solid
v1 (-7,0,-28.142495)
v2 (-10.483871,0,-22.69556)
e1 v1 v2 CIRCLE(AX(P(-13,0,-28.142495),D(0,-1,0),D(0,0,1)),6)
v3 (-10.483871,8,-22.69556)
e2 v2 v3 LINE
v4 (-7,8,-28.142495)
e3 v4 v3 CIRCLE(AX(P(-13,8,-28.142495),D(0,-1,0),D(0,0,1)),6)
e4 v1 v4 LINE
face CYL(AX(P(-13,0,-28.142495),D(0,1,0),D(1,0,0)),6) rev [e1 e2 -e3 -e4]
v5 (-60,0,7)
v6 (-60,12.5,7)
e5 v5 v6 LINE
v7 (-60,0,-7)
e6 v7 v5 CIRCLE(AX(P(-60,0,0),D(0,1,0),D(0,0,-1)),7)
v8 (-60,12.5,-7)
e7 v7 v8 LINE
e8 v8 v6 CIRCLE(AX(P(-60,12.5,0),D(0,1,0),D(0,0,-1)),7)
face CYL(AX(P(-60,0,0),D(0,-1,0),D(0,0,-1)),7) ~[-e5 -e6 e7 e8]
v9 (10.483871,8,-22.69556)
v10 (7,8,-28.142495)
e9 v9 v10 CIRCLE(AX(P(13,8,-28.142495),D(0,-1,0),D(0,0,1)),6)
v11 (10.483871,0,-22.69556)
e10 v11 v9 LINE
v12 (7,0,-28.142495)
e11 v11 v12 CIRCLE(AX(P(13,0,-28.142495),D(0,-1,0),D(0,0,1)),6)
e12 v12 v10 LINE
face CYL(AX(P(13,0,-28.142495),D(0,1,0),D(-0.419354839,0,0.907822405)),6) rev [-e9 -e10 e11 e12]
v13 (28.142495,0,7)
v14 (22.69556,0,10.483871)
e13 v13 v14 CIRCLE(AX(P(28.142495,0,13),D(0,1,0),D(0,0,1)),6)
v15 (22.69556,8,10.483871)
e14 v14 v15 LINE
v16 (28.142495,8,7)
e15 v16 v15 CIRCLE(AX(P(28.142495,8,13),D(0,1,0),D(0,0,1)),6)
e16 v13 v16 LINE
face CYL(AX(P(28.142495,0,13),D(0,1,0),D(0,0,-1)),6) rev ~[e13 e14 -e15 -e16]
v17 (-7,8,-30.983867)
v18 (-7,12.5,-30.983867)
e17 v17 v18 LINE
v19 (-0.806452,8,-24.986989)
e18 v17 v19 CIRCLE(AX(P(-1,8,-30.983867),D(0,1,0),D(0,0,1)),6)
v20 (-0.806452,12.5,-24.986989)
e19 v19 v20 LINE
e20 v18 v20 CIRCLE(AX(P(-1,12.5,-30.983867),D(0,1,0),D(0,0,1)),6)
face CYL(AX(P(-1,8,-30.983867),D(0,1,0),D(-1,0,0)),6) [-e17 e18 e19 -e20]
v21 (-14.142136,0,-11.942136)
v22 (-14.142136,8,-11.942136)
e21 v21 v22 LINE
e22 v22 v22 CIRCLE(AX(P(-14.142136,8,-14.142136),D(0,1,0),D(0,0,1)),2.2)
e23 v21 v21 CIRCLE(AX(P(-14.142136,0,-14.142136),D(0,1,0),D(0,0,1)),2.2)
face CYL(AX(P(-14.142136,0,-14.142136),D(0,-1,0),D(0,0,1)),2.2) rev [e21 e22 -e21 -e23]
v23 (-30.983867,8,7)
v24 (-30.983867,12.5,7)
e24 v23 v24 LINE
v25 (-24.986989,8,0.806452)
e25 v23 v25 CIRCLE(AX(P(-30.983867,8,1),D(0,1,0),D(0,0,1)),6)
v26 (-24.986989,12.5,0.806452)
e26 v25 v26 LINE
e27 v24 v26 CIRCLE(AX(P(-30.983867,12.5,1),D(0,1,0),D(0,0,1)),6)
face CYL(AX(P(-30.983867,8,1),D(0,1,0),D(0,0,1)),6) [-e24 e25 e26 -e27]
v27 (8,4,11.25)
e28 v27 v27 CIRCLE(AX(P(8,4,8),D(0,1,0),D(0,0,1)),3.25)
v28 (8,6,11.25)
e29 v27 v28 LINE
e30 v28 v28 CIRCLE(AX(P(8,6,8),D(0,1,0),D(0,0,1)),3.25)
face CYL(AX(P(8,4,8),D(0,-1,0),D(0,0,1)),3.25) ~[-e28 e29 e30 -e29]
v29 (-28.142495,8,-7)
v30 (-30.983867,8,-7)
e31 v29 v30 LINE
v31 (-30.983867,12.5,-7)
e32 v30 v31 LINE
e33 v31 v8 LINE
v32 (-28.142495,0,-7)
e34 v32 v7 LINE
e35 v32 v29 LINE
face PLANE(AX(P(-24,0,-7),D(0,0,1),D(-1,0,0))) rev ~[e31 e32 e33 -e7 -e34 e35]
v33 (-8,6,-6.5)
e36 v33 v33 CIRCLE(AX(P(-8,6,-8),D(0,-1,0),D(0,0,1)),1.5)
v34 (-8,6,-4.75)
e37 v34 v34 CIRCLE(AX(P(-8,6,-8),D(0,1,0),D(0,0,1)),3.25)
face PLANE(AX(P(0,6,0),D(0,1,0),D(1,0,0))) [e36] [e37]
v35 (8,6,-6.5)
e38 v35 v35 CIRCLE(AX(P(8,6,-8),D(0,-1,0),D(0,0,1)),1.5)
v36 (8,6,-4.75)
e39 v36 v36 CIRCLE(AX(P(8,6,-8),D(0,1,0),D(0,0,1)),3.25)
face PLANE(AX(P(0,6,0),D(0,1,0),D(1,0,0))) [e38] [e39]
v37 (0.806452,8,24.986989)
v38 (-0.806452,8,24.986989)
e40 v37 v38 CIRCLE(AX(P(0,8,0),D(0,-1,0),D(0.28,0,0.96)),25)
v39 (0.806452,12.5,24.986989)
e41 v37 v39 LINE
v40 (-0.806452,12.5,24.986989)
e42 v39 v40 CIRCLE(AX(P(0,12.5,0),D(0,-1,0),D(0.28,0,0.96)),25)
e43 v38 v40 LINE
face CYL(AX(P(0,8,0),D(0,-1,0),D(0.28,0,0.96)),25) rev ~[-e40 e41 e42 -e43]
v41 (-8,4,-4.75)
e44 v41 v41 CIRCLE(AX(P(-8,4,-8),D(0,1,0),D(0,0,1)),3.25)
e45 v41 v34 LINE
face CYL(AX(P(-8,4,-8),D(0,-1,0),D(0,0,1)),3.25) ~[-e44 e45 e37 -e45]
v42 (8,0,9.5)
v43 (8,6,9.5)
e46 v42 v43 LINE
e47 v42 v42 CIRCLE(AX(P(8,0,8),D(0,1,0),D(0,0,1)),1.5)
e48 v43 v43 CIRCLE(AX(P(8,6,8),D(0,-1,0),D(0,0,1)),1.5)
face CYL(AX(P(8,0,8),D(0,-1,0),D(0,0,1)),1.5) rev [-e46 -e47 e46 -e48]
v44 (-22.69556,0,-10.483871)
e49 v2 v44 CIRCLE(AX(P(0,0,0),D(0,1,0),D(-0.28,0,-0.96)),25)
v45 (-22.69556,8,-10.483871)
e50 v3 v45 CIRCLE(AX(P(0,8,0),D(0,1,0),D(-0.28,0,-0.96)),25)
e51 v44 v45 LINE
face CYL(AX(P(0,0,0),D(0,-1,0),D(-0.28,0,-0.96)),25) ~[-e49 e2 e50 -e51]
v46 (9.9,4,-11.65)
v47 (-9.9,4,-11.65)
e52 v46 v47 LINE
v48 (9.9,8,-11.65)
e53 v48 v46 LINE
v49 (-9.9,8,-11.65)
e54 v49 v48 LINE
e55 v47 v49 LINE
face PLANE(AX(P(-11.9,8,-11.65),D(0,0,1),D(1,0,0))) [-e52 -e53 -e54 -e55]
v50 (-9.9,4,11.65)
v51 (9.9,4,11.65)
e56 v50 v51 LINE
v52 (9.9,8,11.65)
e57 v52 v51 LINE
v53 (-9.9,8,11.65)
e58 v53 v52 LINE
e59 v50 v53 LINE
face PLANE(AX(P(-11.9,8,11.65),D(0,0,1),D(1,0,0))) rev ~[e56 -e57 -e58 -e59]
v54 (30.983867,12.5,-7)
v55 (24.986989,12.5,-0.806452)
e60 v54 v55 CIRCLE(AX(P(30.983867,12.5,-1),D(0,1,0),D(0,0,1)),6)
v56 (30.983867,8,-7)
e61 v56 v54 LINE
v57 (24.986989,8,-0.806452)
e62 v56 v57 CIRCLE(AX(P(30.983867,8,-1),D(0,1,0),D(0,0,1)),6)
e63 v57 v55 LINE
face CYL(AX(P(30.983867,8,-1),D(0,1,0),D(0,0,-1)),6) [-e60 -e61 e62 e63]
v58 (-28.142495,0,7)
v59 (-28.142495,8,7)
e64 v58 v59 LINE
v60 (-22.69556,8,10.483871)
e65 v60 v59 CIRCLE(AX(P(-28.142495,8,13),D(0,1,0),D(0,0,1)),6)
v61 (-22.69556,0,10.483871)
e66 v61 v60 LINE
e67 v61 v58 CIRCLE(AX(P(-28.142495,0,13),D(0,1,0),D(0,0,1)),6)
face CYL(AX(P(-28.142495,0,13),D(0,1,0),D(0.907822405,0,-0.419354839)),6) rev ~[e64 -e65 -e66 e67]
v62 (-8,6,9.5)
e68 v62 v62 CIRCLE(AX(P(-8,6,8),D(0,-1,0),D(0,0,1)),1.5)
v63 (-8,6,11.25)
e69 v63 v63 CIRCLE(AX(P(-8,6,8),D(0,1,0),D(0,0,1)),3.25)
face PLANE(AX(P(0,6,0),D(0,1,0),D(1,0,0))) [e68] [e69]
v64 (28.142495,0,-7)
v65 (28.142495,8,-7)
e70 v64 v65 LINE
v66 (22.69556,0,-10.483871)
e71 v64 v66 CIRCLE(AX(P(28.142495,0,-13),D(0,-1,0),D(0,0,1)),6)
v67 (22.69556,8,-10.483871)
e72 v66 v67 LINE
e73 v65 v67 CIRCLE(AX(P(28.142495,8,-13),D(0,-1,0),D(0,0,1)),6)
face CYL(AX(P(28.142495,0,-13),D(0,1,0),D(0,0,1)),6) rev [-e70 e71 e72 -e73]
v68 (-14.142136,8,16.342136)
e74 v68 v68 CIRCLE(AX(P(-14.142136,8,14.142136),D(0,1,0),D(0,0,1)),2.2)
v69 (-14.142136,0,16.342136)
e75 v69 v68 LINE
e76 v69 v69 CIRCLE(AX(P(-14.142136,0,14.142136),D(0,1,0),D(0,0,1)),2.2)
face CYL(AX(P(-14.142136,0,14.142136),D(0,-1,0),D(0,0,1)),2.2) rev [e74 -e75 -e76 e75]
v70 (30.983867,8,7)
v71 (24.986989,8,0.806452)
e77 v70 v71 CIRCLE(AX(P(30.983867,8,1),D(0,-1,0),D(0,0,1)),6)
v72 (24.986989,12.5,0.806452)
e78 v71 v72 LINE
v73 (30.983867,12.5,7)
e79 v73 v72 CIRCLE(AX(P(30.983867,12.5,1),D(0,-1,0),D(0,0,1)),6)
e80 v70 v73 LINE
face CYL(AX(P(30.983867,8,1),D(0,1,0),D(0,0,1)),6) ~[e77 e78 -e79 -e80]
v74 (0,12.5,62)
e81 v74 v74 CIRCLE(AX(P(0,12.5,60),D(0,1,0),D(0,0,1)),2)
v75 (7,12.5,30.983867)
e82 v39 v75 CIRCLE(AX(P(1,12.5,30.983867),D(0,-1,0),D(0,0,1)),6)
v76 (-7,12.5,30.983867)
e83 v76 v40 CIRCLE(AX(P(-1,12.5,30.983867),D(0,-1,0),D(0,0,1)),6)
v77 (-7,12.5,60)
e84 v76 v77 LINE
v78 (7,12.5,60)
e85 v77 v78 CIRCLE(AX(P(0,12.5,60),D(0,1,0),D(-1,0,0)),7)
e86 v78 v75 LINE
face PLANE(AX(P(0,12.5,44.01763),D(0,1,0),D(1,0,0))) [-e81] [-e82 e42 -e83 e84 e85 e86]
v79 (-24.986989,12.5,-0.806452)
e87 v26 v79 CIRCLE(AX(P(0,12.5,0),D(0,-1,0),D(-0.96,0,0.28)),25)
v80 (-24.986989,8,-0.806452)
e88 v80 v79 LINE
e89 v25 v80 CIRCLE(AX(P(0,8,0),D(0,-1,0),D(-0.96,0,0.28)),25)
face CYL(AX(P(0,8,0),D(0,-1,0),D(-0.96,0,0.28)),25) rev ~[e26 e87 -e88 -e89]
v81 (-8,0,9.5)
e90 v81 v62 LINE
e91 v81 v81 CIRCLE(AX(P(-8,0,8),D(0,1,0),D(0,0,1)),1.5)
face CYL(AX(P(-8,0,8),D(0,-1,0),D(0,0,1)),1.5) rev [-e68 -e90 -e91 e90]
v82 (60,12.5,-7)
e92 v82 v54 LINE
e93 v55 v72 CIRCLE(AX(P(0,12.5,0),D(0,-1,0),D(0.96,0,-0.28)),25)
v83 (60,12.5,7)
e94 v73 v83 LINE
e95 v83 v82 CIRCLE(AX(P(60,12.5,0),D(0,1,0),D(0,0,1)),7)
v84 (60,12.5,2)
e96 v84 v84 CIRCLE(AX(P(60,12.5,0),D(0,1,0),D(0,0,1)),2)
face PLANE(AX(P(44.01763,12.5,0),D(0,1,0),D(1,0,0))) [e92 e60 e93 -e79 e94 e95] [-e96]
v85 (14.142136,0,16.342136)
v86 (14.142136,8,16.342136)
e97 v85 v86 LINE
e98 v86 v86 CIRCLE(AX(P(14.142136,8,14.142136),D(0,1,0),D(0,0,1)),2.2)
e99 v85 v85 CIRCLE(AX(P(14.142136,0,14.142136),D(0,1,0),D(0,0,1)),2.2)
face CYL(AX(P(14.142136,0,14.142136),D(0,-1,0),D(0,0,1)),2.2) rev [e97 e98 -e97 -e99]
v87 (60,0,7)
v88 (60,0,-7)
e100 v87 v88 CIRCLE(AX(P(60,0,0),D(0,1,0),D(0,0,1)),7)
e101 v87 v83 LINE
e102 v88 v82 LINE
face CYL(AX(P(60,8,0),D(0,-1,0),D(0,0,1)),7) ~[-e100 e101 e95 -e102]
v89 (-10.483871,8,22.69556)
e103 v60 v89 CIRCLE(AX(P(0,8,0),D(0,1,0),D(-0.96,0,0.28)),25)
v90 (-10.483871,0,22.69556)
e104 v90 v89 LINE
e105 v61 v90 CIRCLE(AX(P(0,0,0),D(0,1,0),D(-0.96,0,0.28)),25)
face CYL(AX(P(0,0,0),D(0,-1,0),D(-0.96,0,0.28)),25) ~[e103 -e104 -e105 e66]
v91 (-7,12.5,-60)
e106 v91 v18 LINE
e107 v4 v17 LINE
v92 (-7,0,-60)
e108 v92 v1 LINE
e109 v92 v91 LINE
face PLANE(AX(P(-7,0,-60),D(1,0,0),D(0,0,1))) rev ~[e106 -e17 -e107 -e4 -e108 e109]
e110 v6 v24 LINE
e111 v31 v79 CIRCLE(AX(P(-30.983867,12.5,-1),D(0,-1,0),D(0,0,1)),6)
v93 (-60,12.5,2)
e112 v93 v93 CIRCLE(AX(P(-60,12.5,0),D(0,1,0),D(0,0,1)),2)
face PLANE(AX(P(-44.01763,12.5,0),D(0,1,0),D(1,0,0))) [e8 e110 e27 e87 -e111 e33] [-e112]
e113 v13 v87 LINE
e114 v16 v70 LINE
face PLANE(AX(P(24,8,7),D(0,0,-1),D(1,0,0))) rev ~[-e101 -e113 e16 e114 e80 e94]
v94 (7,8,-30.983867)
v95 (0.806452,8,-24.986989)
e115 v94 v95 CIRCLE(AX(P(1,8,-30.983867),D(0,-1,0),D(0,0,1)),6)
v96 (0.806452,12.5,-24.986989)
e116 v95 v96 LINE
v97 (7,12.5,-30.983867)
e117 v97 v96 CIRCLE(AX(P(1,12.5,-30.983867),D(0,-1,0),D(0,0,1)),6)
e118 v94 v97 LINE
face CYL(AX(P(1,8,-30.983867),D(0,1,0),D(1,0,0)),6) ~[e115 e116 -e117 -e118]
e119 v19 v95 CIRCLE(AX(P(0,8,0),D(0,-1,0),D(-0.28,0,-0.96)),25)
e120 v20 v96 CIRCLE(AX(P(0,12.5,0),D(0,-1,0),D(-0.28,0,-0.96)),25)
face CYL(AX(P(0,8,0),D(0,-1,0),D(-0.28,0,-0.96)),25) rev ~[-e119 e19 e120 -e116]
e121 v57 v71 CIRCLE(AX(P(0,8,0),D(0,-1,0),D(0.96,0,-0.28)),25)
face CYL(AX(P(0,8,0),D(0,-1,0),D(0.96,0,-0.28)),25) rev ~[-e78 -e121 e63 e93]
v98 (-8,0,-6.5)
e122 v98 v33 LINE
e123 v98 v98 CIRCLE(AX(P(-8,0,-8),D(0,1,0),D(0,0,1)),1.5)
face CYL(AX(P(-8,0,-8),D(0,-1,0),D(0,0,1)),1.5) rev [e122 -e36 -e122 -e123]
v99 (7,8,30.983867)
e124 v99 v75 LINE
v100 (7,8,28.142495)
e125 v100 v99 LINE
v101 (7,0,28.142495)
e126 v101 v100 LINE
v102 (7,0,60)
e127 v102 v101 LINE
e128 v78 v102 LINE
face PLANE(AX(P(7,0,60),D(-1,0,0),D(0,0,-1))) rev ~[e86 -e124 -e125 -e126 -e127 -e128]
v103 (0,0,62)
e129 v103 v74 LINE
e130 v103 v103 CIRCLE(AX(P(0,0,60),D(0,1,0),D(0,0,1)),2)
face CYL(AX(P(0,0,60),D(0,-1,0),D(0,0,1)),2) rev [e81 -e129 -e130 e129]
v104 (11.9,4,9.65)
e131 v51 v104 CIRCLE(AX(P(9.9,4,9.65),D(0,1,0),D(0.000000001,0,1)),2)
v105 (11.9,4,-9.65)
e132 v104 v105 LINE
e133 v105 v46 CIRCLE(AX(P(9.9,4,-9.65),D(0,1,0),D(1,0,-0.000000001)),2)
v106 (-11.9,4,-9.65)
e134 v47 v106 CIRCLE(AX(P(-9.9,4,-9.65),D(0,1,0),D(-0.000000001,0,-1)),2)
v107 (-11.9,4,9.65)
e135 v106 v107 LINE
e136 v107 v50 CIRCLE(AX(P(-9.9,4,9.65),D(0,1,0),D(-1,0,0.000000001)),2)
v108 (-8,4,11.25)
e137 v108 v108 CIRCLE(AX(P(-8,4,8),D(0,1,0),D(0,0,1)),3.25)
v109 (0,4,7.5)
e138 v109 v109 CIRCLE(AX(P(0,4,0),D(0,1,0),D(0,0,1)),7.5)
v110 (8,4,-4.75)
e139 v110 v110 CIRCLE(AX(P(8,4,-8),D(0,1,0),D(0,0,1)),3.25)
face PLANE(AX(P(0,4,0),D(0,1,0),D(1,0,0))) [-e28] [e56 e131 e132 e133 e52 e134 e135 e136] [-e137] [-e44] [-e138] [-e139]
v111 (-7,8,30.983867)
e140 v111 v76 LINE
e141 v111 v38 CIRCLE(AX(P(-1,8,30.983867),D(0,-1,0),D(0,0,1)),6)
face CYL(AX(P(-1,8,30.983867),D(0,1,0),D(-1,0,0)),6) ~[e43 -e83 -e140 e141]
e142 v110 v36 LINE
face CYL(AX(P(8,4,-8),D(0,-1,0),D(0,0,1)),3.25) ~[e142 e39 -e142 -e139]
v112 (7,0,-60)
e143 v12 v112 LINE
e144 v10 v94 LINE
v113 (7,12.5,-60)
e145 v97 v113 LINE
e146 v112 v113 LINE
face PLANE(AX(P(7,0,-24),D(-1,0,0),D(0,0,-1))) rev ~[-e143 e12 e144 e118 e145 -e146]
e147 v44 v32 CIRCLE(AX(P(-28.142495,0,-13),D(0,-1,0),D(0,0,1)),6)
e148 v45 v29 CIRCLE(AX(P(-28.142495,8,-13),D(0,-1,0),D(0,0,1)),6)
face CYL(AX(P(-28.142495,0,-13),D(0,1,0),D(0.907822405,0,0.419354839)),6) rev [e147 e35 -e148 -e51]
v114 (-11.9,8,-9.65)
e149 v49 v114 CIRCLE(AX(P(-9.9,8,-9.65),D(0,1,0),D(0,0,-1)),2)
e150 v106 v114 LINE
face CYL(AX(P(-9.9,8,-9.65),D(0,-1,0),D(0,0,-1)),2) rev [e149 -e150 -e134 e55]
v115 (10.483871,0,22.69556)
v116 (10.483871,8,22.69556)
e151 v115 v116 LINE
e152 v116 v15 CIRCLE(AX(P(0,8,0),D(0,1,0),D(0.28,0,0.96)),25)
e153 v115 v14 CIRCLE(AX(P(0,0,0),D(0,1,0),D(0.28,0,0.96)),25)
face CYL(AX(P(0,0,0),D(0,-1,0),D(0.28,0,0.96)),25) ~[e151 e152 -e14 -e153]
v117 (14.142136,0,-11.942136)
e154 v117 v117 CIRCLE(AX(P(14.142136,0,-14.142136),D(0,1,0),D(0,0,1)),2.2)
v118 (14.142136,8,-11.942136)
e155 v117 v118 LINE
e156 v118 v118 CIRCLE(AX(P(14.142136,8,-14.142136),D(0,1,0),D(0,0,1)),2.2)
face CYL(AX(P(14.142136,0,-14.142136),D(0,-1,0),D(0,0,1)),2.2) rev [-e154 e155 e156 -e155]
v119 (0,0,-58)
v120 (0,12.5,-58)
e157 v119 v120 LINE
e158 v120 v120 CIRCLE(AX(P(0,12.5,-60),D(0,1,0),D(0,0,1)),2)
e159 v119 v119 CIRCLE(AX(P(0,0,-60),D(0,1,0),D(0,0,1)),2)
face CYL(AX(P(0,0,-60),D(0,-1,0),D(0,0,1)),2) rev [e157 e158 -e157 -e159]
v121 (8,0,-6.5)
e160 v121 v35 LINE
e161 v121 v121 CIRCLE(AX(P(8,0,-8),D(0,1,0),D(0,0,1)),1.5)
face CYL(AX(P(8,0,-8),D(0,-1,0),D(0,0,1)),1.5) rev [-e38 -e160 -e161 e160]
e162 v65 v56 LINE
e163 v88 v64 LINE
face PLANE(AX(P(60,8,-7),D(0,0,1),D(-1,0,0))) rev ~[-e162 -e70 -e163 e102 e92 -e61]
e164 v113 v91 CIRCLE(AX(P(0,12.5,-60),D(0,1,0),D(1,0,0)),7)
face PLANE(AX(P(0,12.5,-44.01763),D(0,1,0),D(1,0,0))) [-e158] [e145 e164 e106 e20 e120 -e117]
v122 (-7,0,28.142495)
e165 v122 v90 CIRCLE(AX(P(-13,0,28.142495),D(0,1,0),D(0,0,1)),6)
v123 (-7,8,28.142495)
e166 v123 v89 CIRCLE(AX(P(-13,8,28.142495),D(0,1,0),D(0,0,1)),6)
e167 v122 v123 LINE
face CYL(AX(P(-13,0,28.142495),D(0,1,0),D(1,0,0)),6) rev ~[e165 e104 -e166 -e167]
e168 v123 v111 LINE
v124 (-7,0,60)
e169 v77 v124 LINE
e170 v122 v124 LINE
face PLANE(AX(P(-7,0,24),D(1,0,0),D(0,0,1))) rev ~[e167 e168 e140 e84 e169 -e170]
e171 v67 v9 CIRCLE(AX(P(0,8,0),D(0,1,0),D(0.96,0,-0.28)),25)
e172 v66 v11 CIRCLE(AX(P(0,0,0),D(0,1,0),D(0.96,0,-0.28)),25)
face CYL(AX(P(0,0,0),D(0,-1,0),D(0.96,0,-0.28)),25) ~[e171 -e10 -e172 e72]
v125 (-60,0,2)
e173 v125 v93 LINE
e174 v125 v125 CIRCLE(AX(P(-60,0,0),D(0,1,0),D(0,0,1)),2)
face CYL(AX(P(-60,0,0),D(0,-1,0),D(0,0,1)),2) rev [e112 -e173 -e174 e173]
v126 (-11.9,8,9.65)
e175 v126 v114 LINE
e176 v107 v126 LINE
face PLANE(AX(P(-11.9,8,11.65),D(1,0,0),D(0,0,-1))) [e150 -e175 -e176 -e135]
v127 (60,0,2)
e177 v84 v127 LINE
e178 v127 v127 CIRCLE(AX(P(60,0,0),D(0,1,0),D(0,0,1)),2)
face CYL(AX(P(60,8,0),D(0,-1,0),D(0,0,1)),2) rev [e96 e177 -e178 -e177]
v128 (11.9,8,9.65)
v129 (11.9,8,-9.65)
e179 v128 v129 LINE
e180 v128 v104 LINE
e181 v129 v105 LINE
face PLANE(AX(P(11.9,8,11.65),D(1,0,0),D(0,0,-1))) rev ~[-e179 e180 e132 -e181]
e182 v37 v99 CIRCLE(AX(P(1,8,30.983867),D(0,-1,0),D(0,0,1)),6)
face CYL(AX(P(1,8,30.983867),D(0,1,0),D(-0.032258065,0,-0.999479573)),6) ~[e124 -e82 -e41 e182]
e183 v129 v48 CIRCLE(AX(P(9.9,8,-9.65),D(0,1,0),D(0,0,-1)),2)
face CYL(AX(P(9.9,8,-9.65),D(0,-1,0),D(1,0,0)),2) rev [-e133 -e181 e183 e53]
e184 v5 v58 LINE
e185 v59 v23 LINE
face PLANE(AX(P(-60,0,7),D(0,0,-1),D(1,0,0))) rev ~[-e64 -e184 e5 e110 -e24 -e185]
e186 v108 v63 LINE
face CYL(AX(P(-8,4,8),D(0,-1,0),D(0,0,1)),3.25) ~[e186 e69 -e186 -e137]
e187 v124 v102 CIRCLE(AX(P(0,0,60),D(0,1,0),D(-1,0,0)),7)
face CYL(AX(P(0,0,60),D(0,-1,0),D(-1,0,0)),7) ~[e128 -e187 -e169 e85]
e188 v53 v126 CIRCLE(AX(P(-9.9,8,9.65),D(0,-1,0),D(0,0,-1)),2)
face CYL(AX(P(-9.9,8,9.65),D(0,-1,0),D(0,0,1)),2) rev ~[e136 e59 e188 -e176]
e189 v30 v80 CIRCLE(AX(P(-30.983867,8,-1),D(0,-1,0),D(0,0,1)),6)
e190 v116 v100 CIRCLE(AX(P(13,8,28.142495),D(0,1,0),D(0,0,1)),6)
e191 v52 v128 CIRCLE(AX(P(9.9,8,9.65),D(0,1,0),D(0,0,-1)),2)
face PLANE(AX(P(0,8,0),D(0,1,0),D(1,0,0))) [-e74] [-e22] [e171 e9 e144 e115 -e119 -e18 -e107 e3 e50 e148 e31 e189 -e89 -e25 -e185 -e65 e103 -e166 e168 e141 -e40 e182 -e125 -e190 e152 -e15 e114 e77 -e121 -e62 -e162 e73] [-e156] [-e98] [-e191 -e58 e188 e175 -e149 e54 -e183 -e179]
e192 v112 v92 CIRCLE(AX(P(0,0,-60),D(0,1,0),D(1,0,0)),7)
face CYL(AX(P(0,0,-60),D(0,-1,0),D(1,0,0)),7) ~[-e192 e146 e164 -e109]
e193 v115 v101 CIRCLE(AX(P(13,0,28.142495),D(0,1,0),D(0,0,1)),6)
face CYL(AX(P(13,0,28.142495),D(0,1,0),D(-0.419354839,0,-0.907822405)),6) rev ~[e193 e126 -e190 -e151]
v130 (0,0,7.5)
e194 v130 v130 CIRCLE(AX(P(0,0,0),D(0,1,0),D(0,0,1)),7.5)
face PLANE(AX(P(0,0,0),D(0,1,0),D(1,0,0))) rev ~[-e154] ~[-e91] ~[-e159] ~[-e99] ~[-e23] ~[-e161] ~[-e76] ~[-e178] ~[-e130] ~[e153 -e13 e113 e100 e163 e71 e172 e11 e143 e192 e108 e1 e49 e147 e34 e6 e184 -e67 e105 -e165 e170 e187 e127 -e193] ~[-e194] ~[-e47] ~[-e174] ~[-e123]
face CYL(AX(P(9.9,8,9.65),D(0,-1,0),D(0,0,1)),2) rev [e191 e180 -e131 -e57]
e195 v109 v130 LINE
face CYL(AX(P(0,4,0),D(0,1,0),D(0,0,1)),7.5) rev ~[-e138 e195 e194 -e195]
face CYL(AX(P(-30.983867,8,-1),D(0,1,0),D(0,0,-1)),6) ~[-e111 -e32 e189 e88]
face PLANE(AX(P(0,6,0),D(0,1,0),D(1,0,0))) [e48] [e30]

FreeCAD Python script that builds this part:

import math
import FreeCAD as App
import Part
import Sketcher
from FreeCAD import Vector
Q = App.Units.Quantity


def edges_at(feature, points):
    """Names of the edges that pass closest to the given points."""
    edges = feature.Shape.Edges
    near = lambda p: min(range(len(edges)), key=lambda i: edges[i].distToShape(Part.Vertex(*p))[0])
    return sorted({f"Edge{near(p) + 1}" for p in points})


def add_polygon(sketch, points):
    """Adds a closed chain of lines whose ends are joined by coincident constraints."""
    first, n = sketch.GeometryCount, len(points)
    for a, b in zip(points, points[1:] + points[:1]):
        sketch.addGeometry(Part.LineSegment(App.Vector(*a, 0), App.Vector(*b, 0)), False)
    for i in range(n):
        sketch.addConstraint(Sketcher.Constraint("Coincident", first + i, 2, first + (i + 1) % n, 1))

doc = App.newDocument("Part")
params = doc.addObject("Spreadsheet::Sheet", "Params")
for row, (alias, value) in enumerate([
    ("sketch1_diameter", "3 mm"),
    ("sketch1_diameter2", "4 mm"),
    ("sketch1_radius", "25 mm"),
    ("sketch1_radius2", "7 mm"),
    ("sketch1_diameter3", "4.4 mm"),
    ("pad1_length", "8 mm"),
    ("sketch2_width", "23.8 mm"),
    ("sketch2_height", "23.3 mm"),
    ("pocket1_length", "2 mm"),
    ("fillet_radius", "2 mm"),
    ("sketch3_radius", "2 mm"),
    ("sketch3_diameter", "6.5 mm"),
    ("sketch3_width", "19.8 mm"),
    ("sketch3_height", "19.3 mm"),
    ("pocket2_length", "2 mm"),
    ("sketch4_diameter", "15 mm"),
    ("sketch5_diameter", "4 mm"),
    ("sketch5_radius", "7 mm"),
    ("sketch5_radius2", "25 mm"),
    ("sketch5_width", "36 mm"),
    ("pad2_length", "4.5 mm"),
    ("fillet2_radius", "6 mm"),
    ("fillet3_radius", "6 mm"),
], start=1):
    params.set(f"A{row}", alias)
    params.set(f"B{row}", "=" + value)
    params.setAlias(f"B{row}", alias)

body = doc.addObject("PartDesign::Body", "Body")

sketch1 = doc.addObject("Sketcher::SketchObject", "Sketch")
body.addObject(sketch1)
sketch1.AttachmentSupport = (doc.XZ_Plane, [""])
sketch1.MapMode = "FlatFace"
sketch1.addGeometry(Part.LineSegment(Vector(60, -7, 0), Vector(24, -7, 0)), False)
sketch1.addGeometry(Part.ArcOfCircle(Part.Circle(Vector(0, 0, 0), Vector(0, 0, 1), 25), math.radians(-73.739795), math.radians(-16.260205)), False)
sketch1.addGeometry(Part.LineSegment(Vector(7, -24, 0), Vector(7, -60, 0)), False)
sketch1.addGeometry(Part.ArcOfCircle(Part.Circle(Vector(0, -60, 0), Vector(0, 0, 1), 7), math.radians(180), math.radians(360)), False)
sketch1.addGeometry(Part.LineSegment(Vector(-7, -60, 0), Vector(-7, -24, 0)), False)
sketch1.addGeometry(Part.ArcOfCircle(Part.Circle(Vector(0, 0, 0), Vector(0, 0, 1), 25), math.radians(-163.739795), math.radians(-106.260205)), False)
sketch1.addGeometry(Part.LineSegment(Vector(-24, -7, 0), Vector(-60, -7, 0)), False)
sketch1.addGeometry(Part.ArcOfCircle(Part.Circle(Vector(-60, 0, 0), Vector(0, 0, 1), 7), math.radians(90), math.radians(270)), False)
sketch1.addGeometry(Part.LineSegment(Vector(-60, 7, 0), Vector(-24, 7, 0)), False)
sketch1.addGeometry(Part.ArcOfCircle(Part.Circle(Vector(0, 0, 0), Vector(0, 0, 1), 25), math.radians(106.260205), math.radians(163.739795)), False)
sketch1.addGeometry(Part.LineSegment(Vector(-7, 24, 0), Vector(-7, 60, 0)), False)
sketch1.addGeometry(Part.ArcOfCircle(Part.Circle(Vector(0, 60, 0), Vector(0, 0, 1), 7), math.radians(0), math.radians(180)), False)
sketch1.addGeometry(Part.LineSegment(Vector(7, 60, 0), Vector(7, 24, 0)), False)
sketch1.addGeometry(Part.ArcOfCircle(Part.Circle(Vector(0, 0, 0), Vector(0, 0, 1), 25), math.radians(16.260205), math.radians(73.739795)), False)
sketch1.addGeometry(Part.LineSegment(Vector(24, 7, 0), Vector(60, 7, 0)), False)
sketch1.addGeometry(Part.ArcOfCircle(Part.Circle(Vector(60, 0, 0), Vector(0, 0, 1), 7), math.radians(-90), math.radians(90)), False)
sketch1.addGeometry(Part.Circle(Vector(-14.142136, 14.142136, 0), Vector(0, 0, 1), 2.2), False)
sketch1.addGeometry(Part.Circle(Vector(-8, 8, 0), Vector(0, 0, 1), 1.5), False)
sketch1.addGeometry(Part.Circle(Vector(0, 60, 0), Vector(0, 0, 1), 2), False)
sketch1.addGeometry(Part.Circle(Vector(14.142136, 14.142136, 0), Vector(0, 0, 1), 2.2), False)
sketch1.addGeometry(Part.Circle(Vector(8, 8, 0), Vector(0, 0, 1), 1.5), False)
sketch1.addGeometry(Part.Circle(Vector(-60, 0, 0), Vector(0, 0, 1), 2), False)
sketch1.addGeometry(Part.Circle(Vector(-8, -8, 0), Vector(0, 0, 1), 1.5), False)
sketch1.addGeometry(Part.Circle(Vector(-14.142136, -14.142136, 0), Vector(0, 0, 1), 2.2), False)
sketch1.addGeometry(Part.Circle(Vector(8, -8, 0), Vector(0, 0, 1), 1.5), False)
sketch1.addGeometry(Part.Circle(Vector(14.142136, -14.142136, 0), Vector(0, 0, 1), 2.2), False)
sketch1.addGeometry(Part.Circle(Vector(60, 0, 0), Vector(0, 0, 1), 2), False)
sketch1.addGeometry(Part.Circle(Vector(0, -60, 0), Vector(0, 0, 1), 2), False)
sketch1.addConstraint(Sketcher.Constraint("Coincident", 0, 2, 1, 2))
sketch1.addConstraint(Sketcher.Constraint("Coincident", 1, 1, 2, 1))
sketch1.addConstraint(Sketcher.Constraint("Tangent", 2, 2, 3, 2))
sketch1.addConstraint(Sketcher.Constraint("Tangent", 3, 1, 4, 1))
sketch1.addConstraint(Sketcher.Constraint("Coincident", 4, 2, 5, 2))
sketch1.addConstraint(Sketcher.Constraint("Coincident", 5, 1, 6, 1))
sketch1.addConstraint(Sketcher.Constraint("Tangent", 6, 2, 7, 2))
sketch1.addConstraint(Sketcher.Constraint("Tangent", 7, 1, 8, 1))
sketch1.addConstraint(Sketcher.Constraint("Coincident", 8, 2, 9, 2))
sketch1.addConstraint(Sketcher.Constraint("Coincident", 9, 1, 10, 1))
sketch1.addConstraint(Sketcher.Constraint("Tangent", 10, 2, 11, 2))
sketch1.addConstraint(Sketcher.Constraint("Tangent", 11, 1, 12, 1))
sketch1.addConstraint(Sketcher.Constraint("Coincident", 12, 2, 13, 2))
sketch1.addConstraint(Sketcher.Constraint("Coincident", 13, 1, 14, 1))
sketch1.addConstraint(Sketcher.Constraint("Tangent", 14, 2, 15, 2))
sketch1.addConstraint(Sketcher.Constraint("Tangent", 15, 1, 0, 1))
sketch1.addConstraint(Sketcher.Constraint("Horizontal", 0))
sketch1.addConstraint(Sketcher.Constraint("Vertical", 2))
sketch1.addConstraint(Sketcher.Constraint("Vertical", 4))
sketch1.addConstraint(Sketcher.Constraint("Horizontal", 6))
sketch1.addConstraint(Sketcher.Constraint("Horizontal", 8))
sketch1.addConstraint(Sketcher.Constraint("Vertical", 10))
sketch1.addConstraint(Sketcher.Constraint("Vertical", 12))
sketch1.addConstraint(Sketcher.Constraint("Horizontal", 14))
sketch1.addConstraint(Sketcher.Constraint("Coincident", 1, 3, -1, 1))
sketch1.addConstraint(Sketcher.Constraint("Coincident", 5, 3, -1, 1))
sketch1.addConstraint(Sketcher.Constraint("Coincident", 9, 3, -1, 1))
sketch1.addConstraint(Sketcher.Constraint("Coincident", 13, 3, -1, 1))
sketch1.addConstraint(Sketcher.Constraint("Coincident", 18, 3, 11, 3))
sketch1.addConstraint(Sketcher.Constraint("Coincident", 21, 3, 7, 3))
sketch1.addConstraint(Sketcher.Constraint("Coincident", 26, 3, 15, 3))
sketch1.addConstraint(Sketcher.Constraint("Coincident", 27, 3, 3, 3))
sketch1.addConstraint(Sketcher.Constraint("Equal", 1, 5))
sketch1.addConstraint(Sketcher.Constraint("Equal", 3, 7))
sketch1.addConstraint(Sketcher.Constraint("Equal", 5, 9))
sketch1.addConstraint(Sketcher.Constraint("Equal", 7, 11))
sketch1.addConstraint(Sketcher.Constraint("Equal", 9, 13))
sketch1.addConstraint(Sketcher.Constraint("Equal", 11, 15))
sketch1.addConstraint(Sketcher.Constraint("Equal", 16, 19))
sketch1.addConstraint(Sketcher.Constraint("Equal", 17, 20))
sketch1.addConstraint(Sketcher.Constraint("Equal", 18, 21))
sketch1.addConstraint(Sketcher.Constraint("Equal", 20, 22))
sketch1.addConstraint(Sketcher.Constraint("Equal", 19, 23))
sketch1.addConstraint(Sketcher.Constraint("Equal", 22, 24))
sketch1.addConstraint(Sketcher.Constraint("Equal", 23, 25))
sketch1.addConstraint(Sketcher.Constraint("Equal", 21, 26))
sketch1.addConstraint(Sketcher.Constraint("Equal", 26, 27))
sketch1.addConstraint(Sketcher.Constraint("Symmetric", 3, 3, 11, 3, -1, 1))
sketch1.addConstraint(Sketcher.Constraint("Symmetric", 7, 3, 15, 3, -1, 1))
sketch1.addConstraint(Sketcher.Constraint("Symmetric", 20, 3, 22, 3, -1, 1))
sketch1.addConstraint(Sketcher.Constraint("Symmetric", 19, 3, 23, 3, -1, 1))
sketch1.addConstraint(Sketcher.Constraint("Symmetric", 17, 3, 24, 3, -1, 1))
sketch1.addConstraint(Sketcher.Constraint("Symmetric", 16, 3, 25, 3, -1, 1))
sketch1.addConstraint(Sketcher.Constraint("Symmetric", 16, 3, 19, 3, -2))
sketch1.addConstraint(Sketcher.Constraint("Symmetric", 17, 3, 20, 3, -2))
sketch1.addConstraint(Sketcher.Constraint("PointOnObject", 3, 3, -2))
sketch1.addConstraint(Sketcher.Constraint("PointOnObject", 7, 3, -1))
sketch1.addConstraint(Sketcher.Constraint("Equal", 14, 2))
sketch1.addConstraint(Sketcher.Constraint("Diameter", 17, Q("3 mm")))
sketch1.addConstraint(Sketcher.Constraint("Diameter", 18, Q("4 mm")))
sketch1.addConstraint(Sketcher.Constraint("Radius", 1, Q("25 mm")))
sketch1.addConstraint(Sketcher.Constraint("Radius", 3, Q("7 mm")))
sketch1.addConstraint(Sketcher.Constraint("Diameter", 16, Q("4.4 mm")))
sketch1.addConstraint(Sketcher.Constraint("DistanceX", 0, 2, 0, 1, Q("36 mm")))
sketch1.addConstraint(Sketcher.Constraint("DistanceX", 17, 3, -1, 1, Q("8 mm")))
sketch1.addConstraint(Sketcher.Constraint("DistanceY", -1, 1, 17, 3, Q("8 mm")))
sketch1.addConstraint(Sketcher.Constraint("DistanceX", 16, 3, -1, 1, Q("14.142136 mm")))
sketch1.addConstraint(Sketcher.Constraint("DistanceY", -1, 1, 16, 3, Q("14.142136 mm")))
sketch1.setExpression("Constraints[58]", "Params.sketch1_diameter")
sketch1.setExpression("Constraints[59]", "Params.sketch1_diameter2")
sketch1.setExpression("Constraints[60]", "Params.sketch1_radius")
sketch1.setExpression("Constraints[61]", "Params.sketch1_radius2")
sketch1.setExpression("Constraints[62]", "Params.sketch1_diameter3")
pad1 = doc.addObject("PartDesign::Pad", "Pad")
body.addObject(pad1)
pad1.Profile = sketch1
pad1.setExpression("Length", "Params.pad1_length")
pad1.Reversed = True

sketch2 = doc.addObject("Sketcher::SketchObject", "Sketch001")
body.addObject(sketch2)
sketch2.AttachmentSupport = (doc.XZ_Plane, [""])
sketch2.MapMode = "FlatFace"
sketch2.AttachmentOffset = App.Placement(Vector(0, 0, -8), App.Rotation())
add_polygon(sketch2, [(-11.9, -11.65), (-11.9, 11.65), (11.9, 11.65), (11.9, -11.65)])
sketch2.addConstraint(Sketcher.Constraint("Vertical", 0))
sketch2.addConstraint(Sketcher.Constraint("Horizontal", 1))
sketch2.addConstraint(Sketcher.Constraint("Vertical", 2))
sketch2.addConstraint(Sketcher.Constraint("Horizontal", 3))
sketch2.addConstraint(Sketcher.Constraint("Symmetric", 0, 2, 2, 2, -1, 1))
sketch2.addConstraint(Sketcher.Constraint("DistanceX", 1, 1, 1, 2, Q("23.8 mm")))
sketch2.addConstraint(Sketcher.Constraint("DistanceY", 0, 1, 0, 2, Q("23.3 mm")))
sketch2.setExpression("Constraints[9]", "Params.sketch2_width")
sketch2.setExpression("Constraints[10]", "Params.sketch2_height")
pocket1 = doc.addObject("PartDesign::Pocket", "Pocket")
body.addObject(pocket1)
pocket1.Profile = sketch2
pocket1.setExpression("Length", "Params.pocket1_length")
pocket1.Reversed = True
doc.recompute()

fillet = doc.addObject("PartDesign::Fillet", "Fillet")
body.addObject(fillet)
fillet.Base = (pocket1, edges_at(pocket1, [
    (-11.9, 7, 11.65),
    (-11.9, 7, -11.65),
    (11.9, 7, -11.65),
    (11.9, 7, 11.65),
]))
fillet.setExpression("Radius", "Params.fillet_radius")

sketch3 = doc.addObject("Sketcher::SketchObject", "Sketch002")
body.addObject(sketch3)
sketch3.AttachmentSupport = (doc.XZ_Plane, [""])
sketch3.MapMode = "FlatFace"
sketch3.AttachmentOffset = App.Placement(Vector(0, 0, -4), App.Rotation())
sketch3.addGeometry(Part.LineSegment(Vector(-11.9, -9.65, 0), Vector(-11.9, 9.65, 0)), False)
sketch3.addGeometry(Part.ArcOfCircle(Part.Circle(Vector(-9.9, 9.65, 0), Vector(0, 0, 1), 2), math.radians(90), math.radians(180)), False)
sketch3.addGeometry(Part.LineSegment(Vector(-9.9, 11.65, 0), Vector(9.9, 11.65, 0)), False)
sketch3.addGeometry(Part.ArcOfCircle(Part.Circle(Vector(9.9, 9.65, 0), Vector(0, 0, 1), 2), math.radians(0), math.radians(90)), False)
sketch3.addGeometry(Part.LineSegment(Vector(11.9, 9.65, 0), Vector(11.9, -9.65, 0)), False)
sketch3.addGeometry(Part.ArcOfCircle(Part.Circle(Vector(9.9, -9.65, 0), Vector(0, 0, 1), 2), math.radians(-90), math.radians(0)), False)
sketch3.addGeometry(Part.LineSegment(Vector(9.9, -11.65, 0), Vector(-9.9, -11.65, 0)), False)
sketch3.addGeometry(Part.ArcOfCircle(Part.Circle(Vector(-9.9, -9.65, 0), Vector(0, 0, 1), 2), math.radians(-180), math.radians(-90)), False)
sketch3.addGeometry(Part.Circle(Vector(-8, 8, 0), Vector(0, 0, 1), 3.25), False)
sketch3.addGeometry(Part.Circle(Vector(8, 8, 0), Vector(0, 0, 1), 3.25), False)
sketch3.addGeometry(Part.Circle(Vector(-8, -8, 0), Vector(0, 0, 1), 3.25), False)
sketch3.addGeometry(Part.Circle(Vector(8, -8, 0), Vector(0, 0, 1), 3.25), False)
sketch3.addConstraint(Sketcher.Constraint("Tangent", 0, 2, 1, 2))
sketch3.addConstraint(Sketcher.Constraint("Tangent", 1, 1, 2, 1))
sketch3.addConstraint(Sketcher.Constraint("Tangent", 2, 2, 3, 2))
sketch3.addConstraint(Sketcher.Constraint("Tangent", 3, 1, 4, 1))
sketch3.addConstraint(Sketcher.Constraint("Tangent", 4, 2, 5, 2))
sketch3.addConstraint(Sketcher.Constraint("Tangent", 5, 1, 6, 1))
sketch3.addConstraint(Sketcher.Constraint("Tangent", 6, 2, 7, 2))
sketch3.addConstraint(Sketcher.Constraint("Tangent", 7, 1, 0, 1))
sketch3.addConstraint(Sketcher.Constraint("Vertical", 0))
sketch3.addConstraint(Sketcher.Constraint("Horizontal", 2))
sketch3.addConstraint(Sketcher.Constraint("Vertical", 4))
sketch3.addConstraint(Sketcher.Constraint("Horizontal", 6))
sketch3.addConstraint(Sketcher.Constraint("Equal", 1, 3))
sketch3.addConstraint(Sketcher.Constraint("Equal", 3, 5))
sketch3.addConstraint(Sketcher.Constraint("Equal", 5, 7))
sketch3.addConstraint(Sketcher.Constraint("Equal", 8, 9))
sketch3.addConstraint(Sketcher.Constraint("Equal", 9, 10))
sketch3.addConstraint(Sketcher.Constraint("Equal", 10, 11))
sketch3.addConstraint(Sketcher.Constraint("Symmetric", 1, 3, 5, 3, -1, 1))
sketch3.addConstraint(Sketcher.Constraint("Symmetric", 9, 3, 10, 3, -1, 1))
sketch3.addConstraint(Sketcher.Constraint("Symmetric", 8, 3, 11, 3, -1, 1))
sketch3.addConstraint(Sketcher.Constraint("Symmetric", 8, 3, 9, 3, -2))
sketch3.addConstraint(Sketcher.Constraint("Radius", 1, Q("2 mm")))
sketch3.addConstraint(Sketcher.Constraint("Diameter", 8, Q("6.5 mm")))
sketch3.addConstraint(Sketcher.Constraint("DistanceX", 2, 1, 2, 2, Q("19.8 mm")))
sketch3.addConstraint(Sketcher.Constraint("DistanceY", 0, 1, 0, 2, Q("19.3 mm")))
sketch3.addConstraint(Sketcher.Constraint("DistanceX", 8, 3, -1, 1, Q("8 mm")))
sketch3.addConstraint(Sketcher.Constraint("DistanceY", -1, 1, 8, 3, Q("8 mm")))
sketch3.setExpression("Constraints[22]", "Params.sketch3_radius")
sketch3.setExpression("Constraints[23]", "Params.sketch3_diameter")
sketch3.setExpression("Constraints[24]", "Params.sketch3_width")
sketch3.setExpression("Constraints[25]", "Params.sketch3_height")
pocket2 = doc.addObject("PartDesign::Pocket", "Pocket001")
body.addObject(pocket2)
pocket2.Profile = sketch3
pocket2.setExpression("Length", "Params.pocket2_length")

sketch4 = doc.addObject("Sketcher::SketchObject", "Sketch003")
body.addObject(sketch4)
sketch4.AttachmentSupport = (doc.XZ_Plane, [""])
sketch4.MapMode = "FlatFace"
sketch4.AttachmentOffset = App.Placement(Vector(0, 0, -4), App.Rotation())
sketch4.addGeometry(Part.Circle(Vector(0, 0, 0), Vector(0, 0, 1), 7.5), False)
sketch4.addConstraint(Sketcher.Constraint("Coincident", 0, 3, -1, 1))
sketch4.addConstraint(Sketcher.Constraint("Diameter", 0, Q("15 mm")))
sketch4.setExpression("Constraints[1]", "Params.sketch4_diameter")
pocket3 = doc.addObject("PartDesign::Pocket", "Pocket002")
body.addObject(pocket3)
pocket3.Profile = sketch4
pocket3.Type = "ThroughAll"
pocket3.Reversed = True

sketch5 = doc.addObject("Sketcher::SketchObject", "Sketch004")
body.addObject(sketch5)
sketch5.AttachmentSupport = (doc.XZ_Plane, [""])
sketch5.MapMode = "FlatFace"
sketch5.AttachmentOffset = App.Placement(Vector(0, 0, -8), App.Rotation())
sketch5.addGeometry(Part.LineSegment(Vector(24, 7, 0), Vector(60, 7, 0)), False)
sketch5.addGeometry(Part.ArcOfCircle(Part.Circle(Vector(60, 0, 0), Vector(0, 0, 1), 7), math.radians(-90), math.radians(90)), False)
sketch5.addGeometry(Part.LineSegment(Vector(60, -7, 0), Vector(24, -7, 0)), False)
sketch5.addGeometry(Part.ArcOfCircle(Part.Circle(Vector(0, 0, 0), Vector(0, 0, 1), 25), math.radians(-16.260205), math.radians(16.260205)), False)
sketch5.addGeometry(Part.Circle(Vector(60, 0, 0), Vector(0, 0, 1), 2), False)
sketch5.addGeometry(Part.LineSegment(Vector(7, -24, 0), Vector(7, -60, 0)), False)
sketch5.addGeometry(Part.ArcOfCircle(Part.Circle(Vector(0, -60, 0), Vector(0, 0, 1), 7), math.radians(180), math.radians(360)), False)
sketch5.addGeometry(Part.LineSegment(Vector(-7, -60, 0), Vector(-7, -24, 0)), False)
sketch5.addGeometry(Part.ArcOfCircle(Part.Circle(Vector(0, 0, 0), Vector(0, 0, 1), 25), math.radians(-106.260205), math.radians(-73.739795)), False)
sketch5.addGeometry(Part.Circle(Vector(0, -60, 0), Vector(0, 0, 1), 2), False)
sketch5.addGeometry(Part.LineSegment(Vector(-24, -7, 0), Vector(-60, -7, 0)), False)
sketch5.addGeometry(Part.ArcOfCircle(Part.Circle(Vector(-60, 0, 0), Vector(0, 0, 1), 7), math.radians(90), math.radians(270)), False)
sketch5.addGeometry(Part.LineSegment(Vector(-60, 7, 0), Vector(-24, 7, 0)), False)
sketch5.addGeometry(Part.ArcOfCircle(Part.Circle(Vector(0, 0, 0), Vector(0, 0, 1), 25), math.radians(163.739795), math.radians(196.260205)), False)
sketch5.addGeometry(Part.Circle(Vector(-60, 0, 0), Vector(0, 0, 1), 2), False)
sketch5.addGeometry(Part.LineSegment(Vector(-7, 24, 0), Vector(-7, 60, 0)), False)
sketch5.addGeometry(Part.ArcOfCircle(Part.Circle(Vector(0, 60, 0), Vector(0, 0, 1), 7), math.radians(0), math.radians(180)), False)
sketch5.addGeometry(Part.LineSegment(Vector(7, 60, 0), Vector(7, 24, 0)), False)
sketch5.addGeometry(Part.ArcOfCircle(Part.Circle(Vector(0, 0, 0), Vector(0, 0, 1), 25), math.radians(73.739795), math.radians(106.260205)), False)
sketch5.addGeometry(Part.Circle(Vector(0, 60, 0), Vector(0, 0, 1), 2), False)
sketch5.addConstraint(Sketcher.Constraint("Tangent", 0, 2, 1, 2))
sketch5.addConstraint(Sketcher.Constraint("Tangent", 1, 1, 2, 1))
sketch5.addConstraint(Sketcher.Constraint("Coincident", 2, 2, 3, 1))
sketch5.addConstraint(Sketcher.Constraint("Coincident", 3, 2, 0, 1))
sketch5.addConstraint(Sketcher.Constraint("Tangent", 5, 2, 6, 2))
sketch5.addConstraint(Sketcher.Constraint("Tangent", 6, 1, 7, 1))
sketch5.addConstraint(Sketcher.Constraint("Coincident", 7, 2, 8, 1))
sketch5.addConstraint(Sketcher.Constraint("Coincident", 8, 2, 5, 1))
sketch5.addConstraint(Sketcher.Constraint("Tangent", 10, 2, 11, 2))
sketch5.addConstraint(Sketcher.Constraint("Tangent", 11, 1, 12, 1))
sketch5.addConstraint(Sketcher.Constraint("Coincident", 12, 2, 13, 1))
sketch5.addConstraint(Sketcher.Constraint("Coincident", 13, 2, 10, 1))
sketch5.addConstraint(Sketcher.Constraint("Tangent", 15, 2, 16, 2))
sketch5.addConstraint(Sketcher.Constraint("Tangent", 16, 1, 17, 1))
sketch5.addConstraint(Sketcher.Constraint("Coincident", 17, 2, 18, 1))
sketch5.addConstraint(Sketcher.Constraint("Coincident", 18, 2, 15, 1))
sketch5.addConstraint(Sketcher.Constraint("Horizontal", 0))
sketch5.addConstraint(Sketcher.Constraint("Horizontal", 2))
sketch5.addConstraint(Sketcher.Constraint("Vertical", 5))
sketch5.addConstraint(Sketcher.Constraint("Vertical", 7))
sketch5.addConstraint(Sketcher.Constraint("Horizontal", 10))
sketch5.addConstraint(Sketcher.Constraint("Horizontal", 12))
sketch5.addConstraint(Sketcher.Constraint("Vertical", 15))
sketch5.addConstraint(Sketcher.Constraint("Vertical", 17))
sketch5.addConstraint(Sketcher.Constraint("Coincident", 3, 3, -1, 1))
sketch5.addConstraint(Sketcher.Constraint("Coincident", 8, 3, -1, 1))
sketch5.addConstraint(Sketcher.Constraint("Coincident", 13, 3, -1, 1))
sketch5.addConstraint(Sketcher.Constraint("Coincident", 18, 3, -1, 1))
sketch5.addConstraint(Sketcher.Constraint("Coincident", 4, 3, 1, 3))
sketch5.addConstraint(Sketcher.Constraint("Coincident", 9, 3, 6, 3))
sketch5.addConstraint(Sketcher.Constraint("Coincident", 14, 3, 11, 3))
sketch5.addConstraint(Sketcher.Constraint("Coincident", 19, 3, 16, 3))
sketch5.addConstraint(Sketcher.Constraint("Equal", 1, 6))
sketch5.addConstraint(Sketcher.Constraint("Equal", 3, 8))
sketch5.addConstraint(Sketcher.Constraint("Equal", 4, 9))
sketch5.addConstraint(Sketcher.Constraint("Equal", 6, 11))
sketch5.addConstraint(Sketcher.Constraint("Equal", 8, 13))
sketch5.addConstraint(Sketcher.Constraint("Equal", 9, 14))
sketch5.addConstraint(Sketcher.Constraint("Equal", 11, 16))
sketch5.addConstraint(Sketcher.Constraint("Equal", 13, 18))
sketch5.addConstraint(Sketcher.Constraint("Equal", 14, 19))
sketch5.addConstraint(Sketcher.Constraint("Symmetric", 1, 3, 11, 3, -1, 1))
sketch5.addConstraint(Sketcher.Constraint("Symmetric", 6, 3, 16, 3, -1, 1))
sketch5.addConstraint(Sketcher.Constraint("PointOnObject", 1, 3, -1))
sketch5.addConstraint(Sketcher.Constraint("PointOnObject", 6, 3, -2))
sketch5.addConstraint(Sketcher.Constraint("Equal", 12, 5))
sketch5.addConstraint(Sketcher.Constraint("Diameter", 4, Q("4 mm")))
sketch5.addConstraint(Sketcher.Constraint("Radius", 1, Q("7 mm")))
sketch5.addConstraint(Sketcher.Constraint("Radius", 3, Q("25 mm")))
sketch5.addConstraint(Sketcher.Constraint("DistanceX", 0, 1, 0, 2, Q("36 mm")))
sketch5.setExpression("Constraints[46]", "Params.sketch5_diameter")
sketch5.setExpression("Constraints[47]", "Params.sketch5_radius")
sketch5.setExpression("Constraints[48]", "Params.sketch5_radius2")
sketch5.setExpression("Constraints[49]", "Params.sketch5_width")
pad2 = doc.addObject("PartDesign::Pad", "Pad001")
body.addObject(pad2)
pad2.Profile = sketch5
pad2.setExpression("Length", "Params.pad2_length")
pad2.Reversed = True
doc.recompute()

fillet2 = doc.addObject("PartDesign::Fillet", "Fillet001")
body.addObject(fillet2)
fillet2.Base = (pad2, edges_at(pad2, [
    (7, 10.25, 24),
    (-7, 10.25, 24),
    (24, 10.25, -7),
    (24, 10.25, 7),
    (-7, 10.25, -24),
    (7, 10.25, -24),
    (-24, 10.25, 7),
    (-24, 10.25, -7),
]))
fillet2.setExpression("Radius", "Params.fillet2_radius")
doc.recompute()

fillet3 = doc.addObject("PartDesign::Fillet", "Fillet002")
body.addObject(fillet3)
fillet3.Base = (fillet2, edges_at(fillet2, [
    (7, 4, 24),
    (-7, 4, 24),
    (-24, 4, 7),
    (-24, 4, -7),
    (-7, 4, -24),
    (7, 4, -24),
    (24, 4, -7),
    (24, 4, 7),
]))
fillet3.setExpression("Radius", "Params.fillet3_radius")

doc.recompute()
